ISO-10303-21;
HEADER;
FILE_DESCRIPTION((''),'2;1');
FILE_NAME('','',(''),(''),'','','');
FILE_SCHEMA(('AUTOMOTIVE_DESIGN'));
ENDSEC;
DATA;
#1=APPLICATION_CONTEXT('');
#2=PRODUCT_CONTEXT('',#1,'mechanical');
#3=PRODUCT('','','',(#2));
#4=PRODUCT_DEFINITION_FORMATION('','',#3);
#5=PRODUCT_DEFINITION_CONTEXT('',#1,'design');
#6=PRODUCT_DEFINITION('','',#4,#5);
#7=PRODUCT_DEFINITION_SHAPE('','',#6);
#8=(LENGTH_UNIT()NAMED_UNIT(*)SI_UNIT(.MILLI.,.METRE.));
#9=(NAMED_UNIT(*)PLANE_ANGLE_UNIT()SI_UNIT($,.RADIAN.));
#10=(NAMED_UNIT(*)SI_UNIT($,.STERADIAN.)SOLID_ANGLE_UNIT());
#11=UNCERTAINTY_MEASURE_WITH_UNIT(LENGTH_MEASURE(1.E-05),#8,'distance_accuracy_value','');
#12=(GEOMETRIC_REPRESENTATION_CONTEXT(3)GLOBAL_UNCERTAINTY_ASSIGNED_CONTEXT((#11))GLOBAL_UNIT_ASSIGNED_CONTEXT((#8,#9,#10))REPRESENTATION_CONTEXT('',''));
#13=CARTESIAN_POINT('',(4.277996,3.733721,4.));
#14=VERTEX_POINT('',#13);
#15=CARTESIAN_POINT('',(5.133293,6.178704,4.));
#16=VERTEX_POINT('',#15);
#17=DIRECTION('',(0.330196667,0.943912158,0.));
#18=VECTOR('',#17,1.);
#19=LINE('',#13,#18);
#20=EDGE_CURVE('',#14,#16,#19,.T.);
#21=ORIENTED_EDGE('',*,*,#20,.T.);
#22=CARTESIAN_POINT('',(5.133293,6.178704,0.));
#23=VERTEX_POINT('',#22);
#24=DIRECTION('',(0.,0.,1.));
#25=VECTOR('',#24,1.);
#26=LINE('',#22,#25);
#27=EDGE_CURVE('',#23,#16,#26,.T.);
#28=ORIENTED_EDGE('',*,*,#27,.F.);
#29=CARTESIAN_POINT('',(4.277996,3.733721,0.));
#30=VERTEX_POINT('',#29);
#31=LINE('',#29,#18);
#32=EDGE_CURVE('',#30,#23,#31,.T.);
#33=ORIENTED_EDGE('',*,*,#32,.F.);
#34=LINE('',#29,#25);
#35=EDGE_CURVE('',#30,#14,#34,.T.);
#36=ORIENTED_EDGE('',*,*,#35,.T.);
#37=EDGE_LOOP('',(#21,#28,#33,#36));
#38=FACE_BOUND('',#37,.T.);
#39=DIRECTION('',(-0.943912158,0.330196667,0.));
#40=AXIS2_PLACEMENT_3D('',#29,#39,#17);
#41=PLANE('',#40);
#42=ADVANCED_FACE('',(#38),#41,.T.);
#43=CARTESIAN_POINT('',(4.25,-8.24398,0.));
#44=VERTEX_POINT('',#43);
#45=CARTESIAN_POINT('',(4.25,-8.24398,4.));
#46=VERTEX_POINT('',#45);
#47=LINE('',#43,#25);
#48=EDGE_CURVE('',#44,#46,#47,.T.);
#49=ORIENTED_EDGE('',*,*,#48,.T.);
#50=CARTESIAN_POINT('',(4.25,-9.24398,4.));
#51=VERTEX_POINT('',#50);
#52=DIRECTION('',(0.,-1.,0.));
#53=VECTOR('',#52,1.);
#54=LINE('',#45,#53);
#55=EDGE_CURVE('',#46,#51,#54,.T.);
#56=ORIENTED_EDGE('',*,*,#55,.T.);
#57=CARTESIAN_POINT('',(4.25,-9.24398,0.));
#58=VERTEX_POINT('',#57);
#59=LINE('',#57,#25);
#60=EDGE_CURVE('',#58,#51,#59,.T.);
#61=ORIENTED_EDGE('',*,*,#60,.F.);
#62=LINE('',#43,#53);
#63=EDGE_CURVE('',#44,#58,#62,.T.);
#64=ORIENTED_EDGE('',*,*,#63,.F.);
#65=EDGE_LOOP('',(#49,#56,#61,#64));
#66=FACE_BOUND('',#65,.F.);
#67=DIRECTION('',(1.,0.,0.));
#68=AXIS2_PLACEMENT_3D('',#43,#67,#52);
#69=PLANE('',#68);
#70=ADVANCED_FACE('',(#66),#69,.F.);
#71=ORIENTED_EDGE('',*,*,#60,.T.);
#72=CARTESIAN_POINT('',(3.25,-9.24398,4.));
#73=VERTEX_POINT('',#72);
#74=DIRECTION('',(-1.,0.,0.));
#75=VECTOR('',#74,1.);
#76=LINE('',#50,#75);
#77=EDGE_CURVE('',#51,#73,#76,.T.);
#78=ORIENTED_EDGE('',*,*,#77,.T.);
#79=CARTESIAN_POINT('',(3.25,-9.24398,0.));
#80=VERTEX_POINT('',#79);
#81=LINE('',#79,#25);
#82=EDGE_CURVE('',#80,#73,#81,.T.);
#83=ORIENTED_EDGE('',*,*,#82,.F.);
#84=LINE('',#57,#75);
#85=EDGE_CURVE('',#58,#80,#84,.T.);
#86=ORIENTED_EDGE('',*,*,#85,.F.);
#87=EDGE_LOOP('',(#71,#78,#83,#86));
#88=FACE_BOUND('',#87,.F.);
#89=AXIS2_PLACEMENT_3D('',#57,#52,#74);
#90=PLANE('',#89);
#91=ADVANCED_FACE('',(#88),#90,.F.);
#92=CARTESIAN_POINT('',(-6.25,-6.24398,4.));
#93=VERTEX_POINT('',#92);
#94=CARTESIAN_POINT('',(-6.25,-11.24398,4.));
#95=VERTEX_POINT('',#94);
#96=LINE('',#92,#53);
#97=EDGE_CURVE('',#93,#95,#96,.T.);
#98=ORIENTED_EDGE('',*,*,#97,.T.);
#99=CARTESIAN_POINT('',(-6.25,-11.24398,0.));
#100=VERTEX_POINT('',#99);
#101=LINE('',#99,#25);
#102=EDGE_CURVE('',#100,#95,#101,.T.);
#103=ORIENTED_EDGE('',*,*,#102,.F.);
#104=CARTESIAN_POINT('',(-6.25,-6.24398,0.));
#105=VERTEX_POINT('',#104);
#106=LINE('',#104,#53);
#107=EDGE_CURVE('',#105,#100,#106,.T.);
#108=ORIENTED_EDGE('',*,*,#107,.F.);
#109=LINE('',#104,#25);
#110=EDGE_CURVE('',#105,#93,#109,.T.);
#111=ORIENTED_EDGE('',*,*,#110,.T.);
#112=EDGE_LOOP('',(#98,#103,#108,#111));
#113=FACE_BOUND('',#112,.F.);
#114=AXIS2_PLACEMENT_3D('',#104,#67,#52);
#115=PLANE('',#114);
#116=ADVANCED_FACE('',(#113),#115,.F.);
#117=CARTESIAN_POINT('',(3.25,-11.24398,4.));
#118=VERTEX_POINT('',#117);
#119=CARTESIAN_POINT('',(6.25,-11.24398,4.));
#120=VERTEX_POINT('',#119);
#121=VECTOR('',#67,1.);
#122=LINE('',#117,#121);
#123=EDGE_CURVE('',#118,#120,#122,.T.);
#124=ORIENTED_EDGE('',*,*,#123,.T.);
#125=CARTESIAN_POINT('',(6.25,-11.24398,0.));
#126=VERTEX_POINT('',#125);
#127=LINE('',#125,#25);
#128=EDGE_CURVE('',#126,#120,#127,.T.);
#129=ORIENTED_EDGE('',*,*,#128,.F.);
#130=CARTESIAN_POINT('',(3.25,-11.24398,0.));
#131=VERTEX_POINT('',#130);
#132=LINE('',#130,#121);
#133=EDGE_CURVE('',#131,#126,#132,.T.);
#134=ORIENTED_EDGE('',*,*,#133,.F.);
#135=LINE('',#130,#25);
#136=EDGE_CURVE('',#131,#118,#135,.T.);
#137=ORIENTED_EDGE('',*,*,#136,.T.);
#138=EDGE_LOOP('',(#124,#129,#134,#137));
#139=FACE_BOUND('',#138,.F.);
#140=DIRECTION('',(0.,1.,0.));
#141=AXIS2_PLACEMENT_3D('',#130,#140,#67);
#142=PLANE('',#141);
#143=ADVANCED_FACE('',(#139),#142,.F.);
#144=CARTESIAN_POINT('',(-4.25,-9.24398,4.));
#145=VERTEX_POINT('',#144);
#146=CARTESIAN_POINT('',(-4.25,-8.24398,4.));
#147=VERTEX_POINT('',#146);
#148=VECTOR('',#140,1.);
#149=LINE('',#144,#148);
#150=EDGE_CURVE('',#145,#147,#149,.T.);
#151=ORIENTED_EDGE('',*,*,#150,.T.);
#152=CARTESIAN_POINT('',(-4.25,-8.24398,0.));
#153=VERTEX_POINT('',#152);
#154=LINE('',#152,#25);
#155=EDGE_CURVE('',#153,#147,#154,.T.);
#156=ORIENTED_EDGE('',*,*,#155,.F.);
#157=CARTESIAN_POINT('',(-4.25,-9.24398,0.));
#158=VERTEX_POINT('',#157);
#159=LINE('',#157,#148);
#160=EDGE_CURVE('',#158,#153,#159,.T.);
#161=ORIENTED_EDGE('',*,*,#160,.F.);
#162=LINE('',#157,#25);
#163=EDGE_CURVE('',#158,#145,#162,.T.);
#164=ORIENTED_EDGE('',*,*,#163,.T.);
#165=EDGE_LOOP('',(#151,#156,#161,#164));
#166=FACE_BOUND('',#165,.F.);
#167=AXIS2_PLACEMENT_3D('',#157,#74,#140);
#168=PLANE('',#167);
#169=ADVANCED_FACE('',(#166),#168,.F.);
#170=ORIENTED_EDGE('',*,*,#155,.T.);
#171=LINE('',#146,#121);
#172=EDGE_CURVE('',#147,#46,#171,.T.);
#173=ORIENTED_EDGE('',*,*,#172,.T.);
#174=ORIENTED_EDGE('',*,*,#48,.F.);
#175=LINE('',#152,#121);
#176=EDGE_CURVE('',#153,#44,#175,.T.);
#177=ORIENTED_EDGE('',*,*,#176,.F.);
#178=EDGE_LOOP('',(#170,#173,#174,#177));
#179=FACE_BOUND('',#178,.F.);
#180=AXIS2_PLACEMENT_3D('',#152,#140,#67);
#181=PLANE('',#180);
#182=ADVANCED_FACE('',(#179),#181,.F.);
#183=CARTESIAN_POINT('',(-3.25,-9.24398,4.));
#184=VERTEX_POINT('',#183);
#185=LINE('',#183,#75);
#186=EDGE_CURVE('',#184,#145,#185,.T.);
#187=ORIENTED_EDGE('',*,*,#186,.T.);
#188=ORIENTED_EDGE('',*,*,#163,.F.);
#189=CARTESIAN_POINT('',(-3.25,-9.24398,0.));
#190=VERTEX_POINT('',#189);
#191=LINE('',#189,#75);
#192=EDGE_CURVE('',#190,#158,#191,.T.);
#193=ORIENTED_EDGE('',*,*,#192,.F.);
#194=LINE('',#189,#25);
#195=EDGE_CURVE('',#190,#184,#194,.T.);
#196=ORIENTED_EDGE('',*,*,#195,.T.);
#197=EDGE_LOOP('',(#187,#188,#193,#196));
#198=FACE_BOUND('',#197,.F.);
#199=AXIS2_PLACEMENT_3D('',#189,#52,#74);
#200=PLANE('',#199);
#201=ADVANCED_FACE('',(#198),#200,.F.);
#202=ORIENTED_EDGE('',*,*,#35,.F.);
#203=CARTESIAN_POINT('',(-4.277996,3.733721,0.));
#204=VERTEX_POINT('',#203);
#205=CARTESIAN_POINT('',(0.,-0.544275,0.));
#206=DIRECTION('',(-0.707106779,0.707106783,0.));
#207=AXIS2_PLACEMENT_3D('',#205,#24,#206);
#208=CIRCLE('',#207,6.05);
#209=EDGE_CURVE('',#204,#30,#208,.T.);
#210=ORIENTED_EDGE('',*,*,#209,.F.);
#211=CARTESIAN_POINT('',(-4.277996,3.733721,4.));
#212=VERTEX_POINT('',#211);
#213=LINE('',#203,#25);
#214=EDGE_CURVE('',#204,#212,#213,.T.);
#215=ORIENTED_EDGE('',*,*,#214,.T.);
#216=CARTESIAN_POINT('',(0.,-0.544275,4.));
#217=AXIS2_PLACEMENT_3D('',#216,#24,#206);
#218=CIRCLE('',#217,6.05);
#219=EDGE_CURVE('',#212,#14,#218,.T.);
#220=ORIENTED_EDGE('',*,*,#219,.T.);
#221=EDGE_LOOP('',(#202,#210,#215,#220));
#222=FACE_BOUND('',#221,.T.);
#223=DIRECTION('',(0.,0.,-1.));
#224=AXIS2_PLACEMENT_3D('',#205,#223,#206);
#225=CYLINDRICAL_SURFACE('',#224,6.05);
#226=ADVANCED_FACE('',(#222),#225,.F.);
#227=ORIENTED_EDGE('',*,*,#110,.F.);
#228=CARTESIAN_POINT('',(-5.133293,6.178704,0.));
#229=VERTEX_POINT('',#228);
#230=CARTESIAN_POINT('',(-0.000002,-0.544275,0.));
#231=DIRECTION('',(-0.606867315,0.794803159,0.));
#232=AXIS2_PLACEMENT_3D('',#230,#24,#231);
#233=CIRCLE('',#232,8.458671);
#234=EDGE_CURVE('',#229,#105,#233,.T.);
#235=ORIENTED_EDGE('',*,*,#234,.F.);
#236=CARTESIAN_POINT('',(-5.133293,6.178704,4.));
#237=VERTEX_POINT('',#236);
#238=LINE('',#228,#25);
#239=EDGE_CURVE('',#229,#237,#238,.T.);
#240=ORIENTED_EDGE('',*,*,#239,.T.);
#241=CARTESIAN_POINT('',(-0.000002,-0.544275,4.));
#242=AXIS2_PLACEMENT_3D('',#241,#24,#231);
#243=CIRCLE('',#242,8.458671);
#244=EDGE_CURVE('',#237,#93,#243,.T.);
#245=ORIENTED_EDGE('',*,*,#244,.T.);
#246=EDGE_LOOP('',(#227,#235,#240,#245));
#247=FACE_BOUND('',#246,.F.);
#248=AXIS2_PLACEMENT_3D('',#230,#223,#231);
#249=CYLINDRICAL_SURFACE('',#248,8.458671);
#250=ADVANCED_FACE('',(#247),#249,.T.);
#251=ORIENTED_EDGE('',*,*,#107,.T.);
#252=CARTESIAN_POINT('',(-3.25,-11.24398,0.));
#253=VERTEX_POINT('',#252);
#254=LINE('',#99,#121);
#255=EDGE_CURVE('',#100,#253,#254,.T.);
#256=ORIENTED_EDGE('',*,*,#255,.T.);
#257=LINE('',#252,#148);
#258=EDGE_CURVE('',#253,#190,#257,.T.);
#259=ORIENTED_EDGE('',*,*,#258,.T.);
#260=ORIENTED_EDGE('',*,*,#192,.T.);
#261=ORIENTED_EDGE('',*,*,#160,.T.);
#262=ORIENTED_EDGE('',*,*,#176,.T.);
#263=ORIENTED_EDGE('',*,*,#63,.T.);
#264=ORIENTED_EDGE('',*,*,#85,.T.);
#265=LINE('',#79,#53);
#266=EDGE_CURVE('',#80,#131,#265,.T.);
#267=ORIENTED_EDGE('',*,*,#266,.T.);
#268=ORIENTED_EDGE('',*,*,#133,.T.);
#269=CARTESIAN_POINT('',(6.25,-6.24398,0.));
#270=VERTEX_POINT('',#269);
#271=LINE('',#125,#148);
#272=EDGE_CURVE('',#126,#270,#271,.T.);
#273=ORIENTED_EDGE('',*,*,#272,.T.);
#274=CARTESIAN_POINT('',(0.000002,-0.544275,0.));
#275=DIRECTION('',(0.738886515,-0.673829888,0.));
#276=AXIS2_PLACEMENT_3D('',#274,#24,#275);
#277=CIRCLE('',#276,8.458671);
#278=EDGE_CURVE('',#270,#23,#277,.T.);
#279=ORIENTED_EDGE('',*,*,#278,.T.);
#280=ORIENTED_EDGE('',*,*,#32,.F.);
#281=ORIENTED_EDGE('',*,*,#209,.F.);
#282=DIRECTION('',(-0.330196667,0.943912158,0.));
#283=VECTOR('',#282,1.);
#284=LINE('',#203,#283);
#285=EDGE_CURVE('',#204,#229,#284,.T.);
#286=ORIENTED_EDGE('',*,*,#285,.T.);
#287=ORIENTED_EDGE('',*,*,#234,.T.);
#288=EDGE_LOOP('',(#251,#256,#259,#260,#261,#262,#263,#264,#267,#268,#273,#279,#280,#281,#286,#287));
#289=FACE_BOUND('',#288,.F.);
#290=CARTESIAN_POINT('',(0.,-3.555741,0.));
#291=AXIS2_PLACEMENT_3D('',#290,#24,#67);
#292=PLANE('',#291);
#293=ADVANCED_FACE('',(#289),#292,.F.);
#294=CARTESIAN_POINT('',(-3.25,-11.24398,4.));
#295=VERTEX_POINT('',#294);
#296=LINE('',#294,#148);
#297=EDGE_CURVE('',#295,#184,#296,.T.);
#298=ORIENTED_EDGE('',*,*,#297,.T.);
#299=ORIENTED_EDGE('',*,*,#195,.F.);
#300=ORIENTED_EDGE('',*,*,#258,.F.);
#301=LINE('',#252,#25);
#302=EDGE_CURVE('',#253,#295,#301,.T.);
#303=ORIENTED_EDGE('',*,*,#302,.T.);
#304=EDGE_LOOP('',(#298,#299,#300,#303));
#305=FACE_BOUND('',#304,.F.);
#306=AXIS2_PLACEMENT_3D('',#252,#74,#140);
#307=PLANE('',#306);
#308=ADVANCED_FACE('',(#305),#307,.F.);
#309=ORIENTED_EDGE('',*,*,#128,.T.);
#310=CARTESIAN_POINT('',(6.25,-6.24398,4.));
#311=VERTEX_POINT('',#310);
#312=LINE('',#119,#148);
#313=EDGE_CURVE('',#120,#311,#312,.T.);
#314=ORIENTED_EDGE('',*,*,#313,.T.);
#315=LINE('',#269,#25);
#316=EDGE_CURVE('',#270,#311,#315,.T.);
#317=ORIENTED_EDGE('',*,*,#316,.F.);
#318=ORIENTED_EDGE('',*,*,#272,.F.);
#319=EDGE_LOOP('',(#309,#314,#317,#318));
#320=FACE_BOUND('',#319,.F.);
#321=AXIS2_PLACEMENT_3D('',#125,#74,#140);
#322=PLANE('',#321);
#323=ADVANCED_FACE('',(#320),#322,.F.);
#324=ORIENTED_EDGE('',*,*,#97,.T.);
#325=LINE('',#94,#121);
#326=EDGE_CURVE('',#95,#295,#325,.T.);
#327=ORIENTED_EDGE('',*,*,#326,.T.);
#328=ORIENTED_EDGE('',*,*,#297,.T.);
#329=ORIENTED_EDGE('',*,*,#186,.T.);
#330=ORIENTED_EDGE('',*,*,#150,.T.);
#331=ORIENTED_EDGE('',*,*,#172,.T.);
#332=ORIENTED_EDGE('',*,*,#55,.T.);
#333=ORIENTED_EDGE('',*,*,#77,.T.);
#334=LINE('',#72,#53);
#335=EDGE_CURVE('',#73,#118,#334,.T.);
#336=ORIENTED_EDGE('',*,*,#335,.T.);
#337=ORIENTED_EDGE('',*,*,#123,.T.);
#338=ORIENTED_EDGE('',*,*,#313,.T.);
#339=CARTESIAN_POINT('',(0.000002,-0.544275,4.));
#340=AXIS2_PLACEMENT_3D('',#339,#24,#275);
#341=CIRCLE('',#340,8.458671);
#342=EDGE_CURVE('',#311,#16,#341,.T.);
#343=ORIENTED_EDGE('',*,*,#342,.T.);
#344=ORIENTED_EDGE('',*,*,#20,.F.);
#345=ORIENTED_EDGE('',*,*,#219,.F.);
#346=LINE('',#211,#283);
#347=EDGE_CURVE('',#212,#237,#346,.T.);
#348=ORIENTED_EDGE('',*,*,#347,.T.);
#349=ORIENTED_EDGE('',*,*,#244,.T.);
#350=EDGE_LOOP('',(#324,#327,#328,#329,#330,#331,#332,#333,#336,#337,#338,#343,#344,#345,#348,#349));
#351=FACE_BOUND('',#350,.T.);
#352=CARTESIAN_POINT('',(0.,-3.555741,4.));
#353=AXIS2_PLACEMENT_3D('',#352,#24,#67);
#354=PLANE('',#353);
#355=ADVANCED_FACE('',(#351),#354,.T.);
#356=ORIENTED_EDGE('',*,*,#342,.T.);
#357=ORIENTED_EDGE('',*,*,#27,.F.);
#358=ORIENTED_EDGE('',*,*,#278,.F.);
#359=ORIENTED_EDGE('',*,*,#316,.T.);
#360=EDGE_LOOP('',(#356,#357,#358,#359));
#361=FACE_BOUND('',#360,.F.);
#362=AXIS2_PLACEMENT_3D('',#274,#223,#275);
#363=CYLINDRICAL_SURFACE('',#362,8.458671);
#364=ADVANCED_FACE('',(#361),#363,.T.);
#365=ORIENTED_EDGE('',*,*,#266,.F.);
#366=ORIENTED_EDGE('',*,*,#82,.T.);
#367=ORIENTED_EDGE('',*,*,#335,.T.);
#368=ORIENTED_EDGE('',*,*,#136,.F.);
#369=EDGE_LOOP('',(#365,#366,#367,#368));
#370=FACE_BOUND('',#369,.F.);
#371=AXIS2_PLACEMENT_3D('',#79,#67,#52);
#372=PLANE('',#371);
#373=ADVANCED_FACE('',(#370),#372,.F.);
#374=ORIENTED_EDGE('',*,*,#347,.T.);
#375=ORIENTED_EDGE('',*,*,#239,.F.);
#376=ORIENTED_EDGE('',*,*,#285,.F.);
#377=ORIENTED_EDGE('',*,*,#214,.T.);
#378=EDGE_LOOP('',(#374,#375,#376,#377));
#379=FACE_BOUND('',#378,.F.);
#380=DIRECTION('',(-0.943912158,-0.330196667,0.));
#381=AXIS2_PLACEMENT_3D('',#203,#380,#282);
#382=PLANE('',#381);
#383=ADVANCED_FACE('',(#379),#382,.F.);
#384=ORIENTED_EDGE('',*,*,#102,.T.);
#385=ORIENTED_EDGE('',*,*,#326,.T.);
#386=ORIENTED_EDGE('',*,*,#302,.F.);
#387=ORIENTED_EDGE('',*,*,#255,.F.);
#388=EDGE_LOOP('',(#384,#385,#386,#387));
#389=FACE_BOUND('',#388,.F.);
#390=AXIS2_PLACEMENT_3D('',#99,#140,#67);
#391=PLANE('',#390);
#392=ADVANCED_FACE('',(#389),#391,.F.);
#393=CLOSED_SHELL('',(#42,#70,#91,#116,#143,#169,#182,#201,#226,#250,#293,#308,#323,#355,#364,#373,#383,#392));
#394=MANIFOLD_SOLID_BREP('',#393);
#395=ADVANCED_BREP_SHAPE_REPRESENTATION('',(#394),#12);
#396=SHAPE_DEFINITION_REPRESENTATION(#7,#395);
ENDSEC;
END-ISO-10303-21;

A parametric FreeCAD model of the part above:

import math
import FreeCAD as App
import Part
import Sketcher
from FreeCAD import Vector

doc = App.newDocument("Part")
body = doc.addObject("PartDesign::Body", "Body")

# Sketch on XY plane
sketch1 = body.newObject("Sketcher::SketchObject", "Sketch")
sketch1.AttachmentSupport = (doc.getObject("XY_Plane"), [""])
sketch1.MapMode = "FlatFace"
sketch1.addGeometry(Part.LineSegment(Vector(-6.2, -6.2, 0), Vector(-6.2, -11.2, 0)), False)
sketch1.addGeometry(Part.LineSegment(Vector(-6.2, -11.2, 0), Vector(-3.2, -11.2, 0)), False)
sketch1.addGeometry(Part.LineSegment(Vector(-3.2, -11.2, 0), Vector(-3.2, -9.2, 0)), False)
sketch1.addGeometry(Part.LineSegment(Vector(-3.2, -9.2, 0), Vector(-4.2, -9.2, 0)), False)
sketch1.addGeometry(Part.LineSegment(Vector(-4.2, -9.2, 0), Vector(-4.2, -8.2, 0)), False)
sketch1.addGeometry(Part.LineSegment(Vector(-4.2, -8.2, 0), Vector(4.2, -8.2, 0)), False)
sketch1.addGeometry(Part.LineSegment(Vector(4.2, -8.2, 0), Vector(4.2, -9.2, 0)), False)
sketch1.addGeometry(Part.LineSegment(Vector(4.2, -9.2, 0), Vector(3.2, -9.2, 0)), False)
sketch1.addGeometry(Part.LineSegment(Vector(3.2, -9.2, 0), Vector(3.2, -11.2, 0)), False)
sketch1.addGeometry(Part.LineSegment(Vector(3.2, -11.2, 0), Vector(6.2, -11.2, 0)), False)
sketch1.addGeometry(Part.LineSegment(Vector(6.2, -11.2, 0), Vector(6.2, -6.2, 0)), False)
sketch1.addGeometry(Part.ArcOfCircle(Part.Circle(Vector(0, -0.5, 0), Vector(0, 0, 1), 8.5), math.radians(-42), math.radians(53)), False)
sketch1.addGeometry(Part.LineSegment(Vector(5.1, 6.2, 0), Vector(4.3, 3.7, 0)), False)
sketch1.addGeometry(Part.ArcOfCircle(Part.Circle(Vector(0, -0.5, 0), Vector(0, 0, 1), 6), math.radians(135), math.radians(405)), False)
sketch1.addGeometry(Part.LineSegment(Vector(-4.3, 3.7, 0), Vector(-5.1, 6.2, 0)), False)
sketch1.addGeometry(Part.ArcOfCircle(Part.Circle(Vector(0, -0.5, 0), Vector(0, 0, 1), 8.5), math.radians(127), math.radians(222)), False)
sketch1.addConstraint(Sketcher.Constraint("Coincident", 0, 2, 1, 1))
sketch1.addConstraint(Sketcher.Constraint("Coincident", 1, 2, 2, 1))
sketch1.addConstraint(Sketcher.Constraint("Coincident", 2, 2, 3, 1))
sketch1.addConstraint(Sketcher.Constraint("Coincident", 3, 2, 4, 1))
sketch1.addConstraint(Sketcher.Constraint("Coincident", 4, 2, 5, 1))
sketch1.addConstraint(Sketcher.Constraint("Coincident", 5, 2, 6, 1))
sketch1.addConstraint(Sketcher.Constraint("Coincident", 6, 2, 7, 1))
sketch1.addConstraint(Sketcher.Constraint("Coincident", 7, 2, 8, 1))
sketch1.addConstraint(Sketcher.Constraint("Coincident", 8, 2, 9, 1))
sketch1.addConstraint(Sketcher.Constraint("Coincident", 9, 2, 10, 1))
sketch1.addConstraint(Sketcher.Constraint("Coincident", 10, 2, 11, 1))
sketch1.addConstraint(Sketcher.Constraint("Coincident", 11, 2, 12, 1))
sketch1.addConstraint(Sketcher.Constraint("Coincident", 12, 2, 13, 2))
sketch1.addConstraint(Sketcher.Constraint("Coincident", 13, 1, 14, 1))
sketch1.addConstraint(Sketcher.Constraint("Coincident", 14, 2, 15, 1))
sketch1.addConstraint(Sketcher.Constraint("Coincident", 15, 2, 0, 1))
sketch1.addConstraint(Sketcher.Constraint("Vertical", 0))
sketch1.addConstraint(Sketcher.Constraint("Horizontal", 1))
sketch1.addConstraint(Sketcher.Constraint("Vertical", 2))
sketch1.addConstraint(Sketcher.Constraint("Horizontal", 3))
sketch1.addConstraint(Sketcher.Constraint("Vertical", 4))
sketch1.addConstraint(Sketcher.Constraint("Horizontal", 5))
sketch1.addConstraint(Sketcher.Constraint("Vertical", 6))
sketch1.addConstraint(Sketcher.Constraint("Horizontal", 7))
sketch1.addConstraint(Sketcher.Constraint("Vertical", 8))
sketch1.addConstraint(Sketcher.Constraint("Horizontal", 9))
sketch1.addConstraint(Sketcher.Constraint("Vertical", 10))
sketch1.addConstraint(Sketcher.Constraint("Coincident", 13, 3, 11, 3))
sketch1.addConstraint(Sketcher.Constraint("Coincident", 15, 3, 11, 3))
sketch1.addConstraint(Sketcher.Constraint("Equal", 11, 15))
sketch1.addConstraint(Sketcher.Constraint("Symmetric", 3, 2, 6, 2, -2))
sketch1.addConstraint(Sketcher.Constraint("Symmetric", 1, 2, 8, 2, -2))
sketch1.addConstraint(Sketcher.Constraint("Symmetric", 12, 2, 13, 1, -2))
sketch1.addConstraint(Sketcher.Constraint("Horizontal", 11, 2, 14, 2))
sketch1.addConstraint(Sketcher.Constraint("Horizontal", 10, 2, 15, 2))
sketch1.addConstraint(Sketcher.Constraint("Equal", 7, 4))
sketch1.addConstraint(Sketcher.Constraint("DistanceX", 1, 1, 1, 2, 3.0))
sketch1.addConstraint(Sketcher.Constraint("DistanceX", 3, 2, 3, 1, 1.0))
sketch1.addConstraint(Sketcher.Constraint("DistanceY", 0, 2, 0, 1, 5.0))
sketch1.addConstraint(Sketcher.Constraint("DistanceY", 2, 1, 2, 2, 2.0))
sketch1.addConstraint(Sketcher.Constraint("Radius", 13, 6.05))
sketch1.addConstraint(Sketcher.Constraint("DistanceX", 5, 1, 5, 2, 8.5))
sketch1.addConstraint(Sketcher.Constraint("Radius", 11, 8.458671))
sketch1.addConstraint(Sketcher.Constraint("DistanceY", 10, 2, 12, 2, 9.977701))
sketch1.addConstraint(Sketcher.Constraint("DistanceY", 0, 2, -1, 1, 11.24398))
sketch1.addConstraint(Sketcher.Constraint("DistanceX", 11, 3, 11, 2, 5.133291))
pad1 = body.newObject("PartDesign::Pad", "Pad")
pad1.Profile = sketch1
pad1.Length = 4

doc.recompute()
